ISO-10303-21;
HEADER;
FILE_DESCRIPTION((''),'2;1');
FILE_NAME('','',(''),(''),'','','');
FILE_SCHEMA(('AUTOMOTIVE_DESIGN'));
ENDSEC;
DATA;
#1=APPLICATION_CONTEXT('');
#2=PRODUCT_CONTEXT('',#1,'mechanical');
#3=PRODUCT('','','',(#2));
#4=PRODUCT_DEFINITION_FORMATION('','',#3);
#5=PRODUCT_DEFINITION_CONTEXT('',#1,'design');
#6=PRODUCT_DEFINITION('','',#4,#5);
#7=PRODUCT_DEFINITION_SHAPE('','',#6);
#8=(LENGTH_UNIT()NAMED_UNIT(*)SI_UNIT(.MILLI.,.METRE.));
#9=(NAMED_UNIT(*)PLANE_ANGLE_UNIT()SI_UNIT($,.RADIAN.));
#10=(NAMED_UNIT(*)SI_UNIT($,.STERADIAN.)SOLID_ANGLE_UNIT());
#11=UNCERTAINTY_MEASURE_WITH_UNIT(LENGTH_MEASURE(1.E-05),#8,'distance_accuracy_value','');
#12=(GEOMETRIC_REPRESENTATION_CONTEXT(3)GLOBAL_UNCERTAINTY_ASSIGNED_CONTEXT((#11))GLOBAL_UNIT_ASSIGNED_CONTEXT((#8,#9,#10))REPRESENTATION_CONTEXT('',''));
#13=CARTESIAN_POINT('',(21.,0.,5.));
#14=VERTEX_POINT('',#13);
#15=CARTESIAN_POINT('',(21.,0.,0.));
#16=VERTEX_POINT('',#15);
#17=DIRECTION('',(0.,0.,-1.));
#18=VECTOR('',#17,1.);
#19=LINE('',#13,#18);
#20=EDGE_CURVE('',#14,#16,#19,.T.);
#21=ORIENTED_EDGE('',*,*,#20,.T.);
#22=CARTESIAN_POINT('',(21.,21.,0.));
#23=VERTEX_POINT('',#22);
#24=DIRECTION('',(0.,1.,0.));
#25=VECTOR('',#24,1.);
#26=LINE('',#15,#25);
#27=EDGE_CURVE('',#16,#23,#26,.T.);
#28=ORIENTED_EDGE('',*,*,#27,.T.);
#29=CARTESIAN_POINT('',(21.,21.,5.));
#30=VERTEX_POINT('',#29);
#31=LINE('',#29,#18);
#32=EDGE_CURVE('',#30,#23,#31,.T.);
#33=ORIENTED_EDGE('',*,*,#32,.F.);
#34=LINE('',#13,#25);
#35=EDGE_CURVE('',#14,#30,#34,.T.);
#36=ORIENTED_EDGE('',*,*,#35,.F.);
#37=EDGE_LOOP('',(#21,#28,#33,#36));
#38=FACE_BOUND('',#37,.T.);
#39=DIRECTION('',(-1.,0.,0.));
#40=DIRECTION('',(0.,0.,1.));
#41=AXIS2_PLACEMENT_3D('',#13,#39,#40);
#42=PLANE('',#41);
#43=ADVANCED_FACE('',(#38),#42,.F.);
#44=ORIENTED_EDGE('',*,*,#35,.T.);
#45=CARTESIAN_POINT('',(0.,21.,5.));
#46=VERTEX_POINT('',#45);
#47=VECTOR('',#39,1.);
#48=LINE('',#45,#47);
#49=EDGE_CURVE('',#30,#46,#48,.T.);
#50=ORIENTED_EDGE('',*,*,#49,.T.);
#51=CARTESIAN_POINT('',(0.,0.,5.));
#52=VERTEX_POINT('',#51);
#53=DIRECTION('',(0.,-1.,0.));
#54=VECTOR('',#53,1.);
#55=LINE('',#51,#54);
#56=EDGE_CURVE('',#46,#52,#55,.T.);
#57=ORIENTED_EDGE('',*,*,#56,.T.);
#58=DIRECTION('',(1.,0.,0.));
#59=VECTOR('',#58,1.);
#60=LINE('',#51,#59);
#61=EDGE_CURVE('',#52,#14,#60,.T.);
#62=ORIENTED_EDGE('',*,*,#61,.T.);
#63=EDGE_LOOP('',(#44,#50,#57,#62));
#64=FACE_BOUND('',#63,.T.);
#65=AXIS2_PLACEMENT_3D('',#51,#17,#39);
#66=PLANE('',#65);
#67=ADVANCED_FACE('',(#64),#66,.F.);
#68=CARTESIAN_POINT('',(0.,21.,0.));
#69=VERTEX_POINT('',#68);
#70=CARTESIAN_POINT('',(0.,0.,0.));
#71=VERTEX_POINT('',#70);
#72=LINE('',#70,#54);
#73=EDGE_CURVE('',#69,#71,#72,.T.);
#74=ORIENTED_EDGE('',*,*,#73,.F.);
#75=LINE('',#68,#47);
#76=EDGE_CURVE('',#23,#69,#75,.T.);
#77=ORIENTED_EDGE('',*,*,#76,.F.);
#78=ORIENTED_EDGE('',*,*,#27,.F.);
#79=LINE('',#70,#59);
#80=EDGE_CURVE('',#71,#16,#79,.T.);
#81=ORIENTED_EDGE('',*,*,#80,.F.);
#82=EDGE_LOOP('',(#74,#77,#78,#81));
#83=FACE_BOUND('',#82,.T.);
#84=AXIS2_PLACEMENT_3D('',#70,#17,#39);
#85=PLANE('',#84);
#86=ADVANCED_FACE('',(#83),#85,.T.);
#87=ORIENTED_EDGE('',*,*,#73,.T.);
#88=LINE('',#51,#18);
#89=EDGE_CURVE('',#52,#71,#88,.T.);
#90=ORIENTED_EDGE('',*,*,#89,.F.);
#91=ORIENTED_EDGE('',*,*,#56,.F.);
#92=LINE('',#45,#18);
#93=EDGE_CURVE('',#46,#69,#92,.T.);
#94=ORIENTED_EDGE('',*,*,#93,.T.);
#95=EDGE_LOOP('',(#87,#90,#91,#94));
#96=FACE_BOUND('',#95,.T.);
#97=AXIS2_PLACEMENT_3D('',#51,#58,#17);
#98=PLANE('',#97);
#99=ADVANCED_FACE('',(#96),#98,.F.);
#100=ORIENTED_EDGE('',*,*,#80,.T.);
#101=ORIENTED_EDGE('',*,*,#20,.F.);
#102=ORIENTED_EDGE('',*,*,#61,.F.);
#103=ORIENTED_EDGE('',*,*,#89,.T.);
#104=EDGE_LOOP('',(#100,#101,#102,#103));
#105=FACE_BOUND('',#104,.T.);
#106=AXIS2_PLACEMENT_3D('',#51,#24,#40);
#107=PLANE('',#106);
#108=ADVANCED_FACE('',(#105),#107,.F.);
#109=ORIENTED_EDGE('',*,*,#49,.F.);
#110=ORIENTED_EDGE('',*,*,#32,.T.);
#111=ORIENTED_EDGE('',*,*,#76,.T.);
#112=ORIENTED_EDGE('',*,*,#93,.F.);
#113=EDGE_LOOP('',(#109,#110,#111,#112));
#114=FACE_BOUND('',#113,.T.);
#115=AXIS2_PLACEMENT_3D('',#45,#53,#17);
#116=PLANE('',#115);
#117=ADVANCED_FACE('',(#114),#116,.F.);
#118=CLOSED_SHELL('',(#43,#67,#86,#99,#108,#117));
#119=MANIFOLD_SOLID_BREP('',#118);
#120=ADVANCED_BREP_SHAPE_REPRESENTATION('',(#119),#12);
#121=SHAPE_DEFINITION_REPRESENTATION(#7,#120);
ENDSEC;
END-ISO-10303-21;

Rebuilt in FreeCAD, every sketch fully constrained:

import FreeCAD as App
import Part
import Sketcher
from FreeCAD import Vector
Q = App.Units.Quantity


def add_polygon(sketch, points):
    """Adds a closed chain of lines whose ends are joined by coincident constraints."""
    first, n = sketch.GeometryCount, len(points)
    for a, b in zip(points, points[1:] + points[:1]):
        sketch.addGeometry(Part.LineSegment(App.Vector(*a, 0), App.Vector(*b, 0)), False)
    for i in range(n):
        sketch.addConstraint(Sketcher.Constraint("Coincident", first + i, 2, first + (i + 1) % n, 1))

doc = App.newDocument("Part")
body = doc.addObject("PartDesign::Body", "Body")

# Sketch on XY plane
sketch1 = body.newObject("Sketcher::SketchObject", "Sketch")
sketch1.AttachmentSupport = (doc.getObject("XY_Plane"), [""])
sketch1.MapMode = "FlatFace"
add_polygon(sketch1, [(0, 21), (0, 0), (21, 0), (21, 21)])  # lines 0-3
sketch1.addConstraint([
    Sketcher.Constraint("Vertical", 0),
    Sketcher.Constraint("Horizontal", 1),
    Sketcher.Constraint("Vertical", 2),
    Sketcher.Constraint("Horizontal", 3),
    Sketcher.Constraint("Coincident", 0, 2, -1, 1),
    Sketcher.Constraint("Equal", 3, 0),
    Sketcher.Constraint("DistanceX", 1, 1, 1, 2, Q("21 mm")),
])
pad1 = body.newObject("PartDesign::Pad", "Pad")
pad1.Profile = sketch1
pad1.Length = 5

doc.recompute()
